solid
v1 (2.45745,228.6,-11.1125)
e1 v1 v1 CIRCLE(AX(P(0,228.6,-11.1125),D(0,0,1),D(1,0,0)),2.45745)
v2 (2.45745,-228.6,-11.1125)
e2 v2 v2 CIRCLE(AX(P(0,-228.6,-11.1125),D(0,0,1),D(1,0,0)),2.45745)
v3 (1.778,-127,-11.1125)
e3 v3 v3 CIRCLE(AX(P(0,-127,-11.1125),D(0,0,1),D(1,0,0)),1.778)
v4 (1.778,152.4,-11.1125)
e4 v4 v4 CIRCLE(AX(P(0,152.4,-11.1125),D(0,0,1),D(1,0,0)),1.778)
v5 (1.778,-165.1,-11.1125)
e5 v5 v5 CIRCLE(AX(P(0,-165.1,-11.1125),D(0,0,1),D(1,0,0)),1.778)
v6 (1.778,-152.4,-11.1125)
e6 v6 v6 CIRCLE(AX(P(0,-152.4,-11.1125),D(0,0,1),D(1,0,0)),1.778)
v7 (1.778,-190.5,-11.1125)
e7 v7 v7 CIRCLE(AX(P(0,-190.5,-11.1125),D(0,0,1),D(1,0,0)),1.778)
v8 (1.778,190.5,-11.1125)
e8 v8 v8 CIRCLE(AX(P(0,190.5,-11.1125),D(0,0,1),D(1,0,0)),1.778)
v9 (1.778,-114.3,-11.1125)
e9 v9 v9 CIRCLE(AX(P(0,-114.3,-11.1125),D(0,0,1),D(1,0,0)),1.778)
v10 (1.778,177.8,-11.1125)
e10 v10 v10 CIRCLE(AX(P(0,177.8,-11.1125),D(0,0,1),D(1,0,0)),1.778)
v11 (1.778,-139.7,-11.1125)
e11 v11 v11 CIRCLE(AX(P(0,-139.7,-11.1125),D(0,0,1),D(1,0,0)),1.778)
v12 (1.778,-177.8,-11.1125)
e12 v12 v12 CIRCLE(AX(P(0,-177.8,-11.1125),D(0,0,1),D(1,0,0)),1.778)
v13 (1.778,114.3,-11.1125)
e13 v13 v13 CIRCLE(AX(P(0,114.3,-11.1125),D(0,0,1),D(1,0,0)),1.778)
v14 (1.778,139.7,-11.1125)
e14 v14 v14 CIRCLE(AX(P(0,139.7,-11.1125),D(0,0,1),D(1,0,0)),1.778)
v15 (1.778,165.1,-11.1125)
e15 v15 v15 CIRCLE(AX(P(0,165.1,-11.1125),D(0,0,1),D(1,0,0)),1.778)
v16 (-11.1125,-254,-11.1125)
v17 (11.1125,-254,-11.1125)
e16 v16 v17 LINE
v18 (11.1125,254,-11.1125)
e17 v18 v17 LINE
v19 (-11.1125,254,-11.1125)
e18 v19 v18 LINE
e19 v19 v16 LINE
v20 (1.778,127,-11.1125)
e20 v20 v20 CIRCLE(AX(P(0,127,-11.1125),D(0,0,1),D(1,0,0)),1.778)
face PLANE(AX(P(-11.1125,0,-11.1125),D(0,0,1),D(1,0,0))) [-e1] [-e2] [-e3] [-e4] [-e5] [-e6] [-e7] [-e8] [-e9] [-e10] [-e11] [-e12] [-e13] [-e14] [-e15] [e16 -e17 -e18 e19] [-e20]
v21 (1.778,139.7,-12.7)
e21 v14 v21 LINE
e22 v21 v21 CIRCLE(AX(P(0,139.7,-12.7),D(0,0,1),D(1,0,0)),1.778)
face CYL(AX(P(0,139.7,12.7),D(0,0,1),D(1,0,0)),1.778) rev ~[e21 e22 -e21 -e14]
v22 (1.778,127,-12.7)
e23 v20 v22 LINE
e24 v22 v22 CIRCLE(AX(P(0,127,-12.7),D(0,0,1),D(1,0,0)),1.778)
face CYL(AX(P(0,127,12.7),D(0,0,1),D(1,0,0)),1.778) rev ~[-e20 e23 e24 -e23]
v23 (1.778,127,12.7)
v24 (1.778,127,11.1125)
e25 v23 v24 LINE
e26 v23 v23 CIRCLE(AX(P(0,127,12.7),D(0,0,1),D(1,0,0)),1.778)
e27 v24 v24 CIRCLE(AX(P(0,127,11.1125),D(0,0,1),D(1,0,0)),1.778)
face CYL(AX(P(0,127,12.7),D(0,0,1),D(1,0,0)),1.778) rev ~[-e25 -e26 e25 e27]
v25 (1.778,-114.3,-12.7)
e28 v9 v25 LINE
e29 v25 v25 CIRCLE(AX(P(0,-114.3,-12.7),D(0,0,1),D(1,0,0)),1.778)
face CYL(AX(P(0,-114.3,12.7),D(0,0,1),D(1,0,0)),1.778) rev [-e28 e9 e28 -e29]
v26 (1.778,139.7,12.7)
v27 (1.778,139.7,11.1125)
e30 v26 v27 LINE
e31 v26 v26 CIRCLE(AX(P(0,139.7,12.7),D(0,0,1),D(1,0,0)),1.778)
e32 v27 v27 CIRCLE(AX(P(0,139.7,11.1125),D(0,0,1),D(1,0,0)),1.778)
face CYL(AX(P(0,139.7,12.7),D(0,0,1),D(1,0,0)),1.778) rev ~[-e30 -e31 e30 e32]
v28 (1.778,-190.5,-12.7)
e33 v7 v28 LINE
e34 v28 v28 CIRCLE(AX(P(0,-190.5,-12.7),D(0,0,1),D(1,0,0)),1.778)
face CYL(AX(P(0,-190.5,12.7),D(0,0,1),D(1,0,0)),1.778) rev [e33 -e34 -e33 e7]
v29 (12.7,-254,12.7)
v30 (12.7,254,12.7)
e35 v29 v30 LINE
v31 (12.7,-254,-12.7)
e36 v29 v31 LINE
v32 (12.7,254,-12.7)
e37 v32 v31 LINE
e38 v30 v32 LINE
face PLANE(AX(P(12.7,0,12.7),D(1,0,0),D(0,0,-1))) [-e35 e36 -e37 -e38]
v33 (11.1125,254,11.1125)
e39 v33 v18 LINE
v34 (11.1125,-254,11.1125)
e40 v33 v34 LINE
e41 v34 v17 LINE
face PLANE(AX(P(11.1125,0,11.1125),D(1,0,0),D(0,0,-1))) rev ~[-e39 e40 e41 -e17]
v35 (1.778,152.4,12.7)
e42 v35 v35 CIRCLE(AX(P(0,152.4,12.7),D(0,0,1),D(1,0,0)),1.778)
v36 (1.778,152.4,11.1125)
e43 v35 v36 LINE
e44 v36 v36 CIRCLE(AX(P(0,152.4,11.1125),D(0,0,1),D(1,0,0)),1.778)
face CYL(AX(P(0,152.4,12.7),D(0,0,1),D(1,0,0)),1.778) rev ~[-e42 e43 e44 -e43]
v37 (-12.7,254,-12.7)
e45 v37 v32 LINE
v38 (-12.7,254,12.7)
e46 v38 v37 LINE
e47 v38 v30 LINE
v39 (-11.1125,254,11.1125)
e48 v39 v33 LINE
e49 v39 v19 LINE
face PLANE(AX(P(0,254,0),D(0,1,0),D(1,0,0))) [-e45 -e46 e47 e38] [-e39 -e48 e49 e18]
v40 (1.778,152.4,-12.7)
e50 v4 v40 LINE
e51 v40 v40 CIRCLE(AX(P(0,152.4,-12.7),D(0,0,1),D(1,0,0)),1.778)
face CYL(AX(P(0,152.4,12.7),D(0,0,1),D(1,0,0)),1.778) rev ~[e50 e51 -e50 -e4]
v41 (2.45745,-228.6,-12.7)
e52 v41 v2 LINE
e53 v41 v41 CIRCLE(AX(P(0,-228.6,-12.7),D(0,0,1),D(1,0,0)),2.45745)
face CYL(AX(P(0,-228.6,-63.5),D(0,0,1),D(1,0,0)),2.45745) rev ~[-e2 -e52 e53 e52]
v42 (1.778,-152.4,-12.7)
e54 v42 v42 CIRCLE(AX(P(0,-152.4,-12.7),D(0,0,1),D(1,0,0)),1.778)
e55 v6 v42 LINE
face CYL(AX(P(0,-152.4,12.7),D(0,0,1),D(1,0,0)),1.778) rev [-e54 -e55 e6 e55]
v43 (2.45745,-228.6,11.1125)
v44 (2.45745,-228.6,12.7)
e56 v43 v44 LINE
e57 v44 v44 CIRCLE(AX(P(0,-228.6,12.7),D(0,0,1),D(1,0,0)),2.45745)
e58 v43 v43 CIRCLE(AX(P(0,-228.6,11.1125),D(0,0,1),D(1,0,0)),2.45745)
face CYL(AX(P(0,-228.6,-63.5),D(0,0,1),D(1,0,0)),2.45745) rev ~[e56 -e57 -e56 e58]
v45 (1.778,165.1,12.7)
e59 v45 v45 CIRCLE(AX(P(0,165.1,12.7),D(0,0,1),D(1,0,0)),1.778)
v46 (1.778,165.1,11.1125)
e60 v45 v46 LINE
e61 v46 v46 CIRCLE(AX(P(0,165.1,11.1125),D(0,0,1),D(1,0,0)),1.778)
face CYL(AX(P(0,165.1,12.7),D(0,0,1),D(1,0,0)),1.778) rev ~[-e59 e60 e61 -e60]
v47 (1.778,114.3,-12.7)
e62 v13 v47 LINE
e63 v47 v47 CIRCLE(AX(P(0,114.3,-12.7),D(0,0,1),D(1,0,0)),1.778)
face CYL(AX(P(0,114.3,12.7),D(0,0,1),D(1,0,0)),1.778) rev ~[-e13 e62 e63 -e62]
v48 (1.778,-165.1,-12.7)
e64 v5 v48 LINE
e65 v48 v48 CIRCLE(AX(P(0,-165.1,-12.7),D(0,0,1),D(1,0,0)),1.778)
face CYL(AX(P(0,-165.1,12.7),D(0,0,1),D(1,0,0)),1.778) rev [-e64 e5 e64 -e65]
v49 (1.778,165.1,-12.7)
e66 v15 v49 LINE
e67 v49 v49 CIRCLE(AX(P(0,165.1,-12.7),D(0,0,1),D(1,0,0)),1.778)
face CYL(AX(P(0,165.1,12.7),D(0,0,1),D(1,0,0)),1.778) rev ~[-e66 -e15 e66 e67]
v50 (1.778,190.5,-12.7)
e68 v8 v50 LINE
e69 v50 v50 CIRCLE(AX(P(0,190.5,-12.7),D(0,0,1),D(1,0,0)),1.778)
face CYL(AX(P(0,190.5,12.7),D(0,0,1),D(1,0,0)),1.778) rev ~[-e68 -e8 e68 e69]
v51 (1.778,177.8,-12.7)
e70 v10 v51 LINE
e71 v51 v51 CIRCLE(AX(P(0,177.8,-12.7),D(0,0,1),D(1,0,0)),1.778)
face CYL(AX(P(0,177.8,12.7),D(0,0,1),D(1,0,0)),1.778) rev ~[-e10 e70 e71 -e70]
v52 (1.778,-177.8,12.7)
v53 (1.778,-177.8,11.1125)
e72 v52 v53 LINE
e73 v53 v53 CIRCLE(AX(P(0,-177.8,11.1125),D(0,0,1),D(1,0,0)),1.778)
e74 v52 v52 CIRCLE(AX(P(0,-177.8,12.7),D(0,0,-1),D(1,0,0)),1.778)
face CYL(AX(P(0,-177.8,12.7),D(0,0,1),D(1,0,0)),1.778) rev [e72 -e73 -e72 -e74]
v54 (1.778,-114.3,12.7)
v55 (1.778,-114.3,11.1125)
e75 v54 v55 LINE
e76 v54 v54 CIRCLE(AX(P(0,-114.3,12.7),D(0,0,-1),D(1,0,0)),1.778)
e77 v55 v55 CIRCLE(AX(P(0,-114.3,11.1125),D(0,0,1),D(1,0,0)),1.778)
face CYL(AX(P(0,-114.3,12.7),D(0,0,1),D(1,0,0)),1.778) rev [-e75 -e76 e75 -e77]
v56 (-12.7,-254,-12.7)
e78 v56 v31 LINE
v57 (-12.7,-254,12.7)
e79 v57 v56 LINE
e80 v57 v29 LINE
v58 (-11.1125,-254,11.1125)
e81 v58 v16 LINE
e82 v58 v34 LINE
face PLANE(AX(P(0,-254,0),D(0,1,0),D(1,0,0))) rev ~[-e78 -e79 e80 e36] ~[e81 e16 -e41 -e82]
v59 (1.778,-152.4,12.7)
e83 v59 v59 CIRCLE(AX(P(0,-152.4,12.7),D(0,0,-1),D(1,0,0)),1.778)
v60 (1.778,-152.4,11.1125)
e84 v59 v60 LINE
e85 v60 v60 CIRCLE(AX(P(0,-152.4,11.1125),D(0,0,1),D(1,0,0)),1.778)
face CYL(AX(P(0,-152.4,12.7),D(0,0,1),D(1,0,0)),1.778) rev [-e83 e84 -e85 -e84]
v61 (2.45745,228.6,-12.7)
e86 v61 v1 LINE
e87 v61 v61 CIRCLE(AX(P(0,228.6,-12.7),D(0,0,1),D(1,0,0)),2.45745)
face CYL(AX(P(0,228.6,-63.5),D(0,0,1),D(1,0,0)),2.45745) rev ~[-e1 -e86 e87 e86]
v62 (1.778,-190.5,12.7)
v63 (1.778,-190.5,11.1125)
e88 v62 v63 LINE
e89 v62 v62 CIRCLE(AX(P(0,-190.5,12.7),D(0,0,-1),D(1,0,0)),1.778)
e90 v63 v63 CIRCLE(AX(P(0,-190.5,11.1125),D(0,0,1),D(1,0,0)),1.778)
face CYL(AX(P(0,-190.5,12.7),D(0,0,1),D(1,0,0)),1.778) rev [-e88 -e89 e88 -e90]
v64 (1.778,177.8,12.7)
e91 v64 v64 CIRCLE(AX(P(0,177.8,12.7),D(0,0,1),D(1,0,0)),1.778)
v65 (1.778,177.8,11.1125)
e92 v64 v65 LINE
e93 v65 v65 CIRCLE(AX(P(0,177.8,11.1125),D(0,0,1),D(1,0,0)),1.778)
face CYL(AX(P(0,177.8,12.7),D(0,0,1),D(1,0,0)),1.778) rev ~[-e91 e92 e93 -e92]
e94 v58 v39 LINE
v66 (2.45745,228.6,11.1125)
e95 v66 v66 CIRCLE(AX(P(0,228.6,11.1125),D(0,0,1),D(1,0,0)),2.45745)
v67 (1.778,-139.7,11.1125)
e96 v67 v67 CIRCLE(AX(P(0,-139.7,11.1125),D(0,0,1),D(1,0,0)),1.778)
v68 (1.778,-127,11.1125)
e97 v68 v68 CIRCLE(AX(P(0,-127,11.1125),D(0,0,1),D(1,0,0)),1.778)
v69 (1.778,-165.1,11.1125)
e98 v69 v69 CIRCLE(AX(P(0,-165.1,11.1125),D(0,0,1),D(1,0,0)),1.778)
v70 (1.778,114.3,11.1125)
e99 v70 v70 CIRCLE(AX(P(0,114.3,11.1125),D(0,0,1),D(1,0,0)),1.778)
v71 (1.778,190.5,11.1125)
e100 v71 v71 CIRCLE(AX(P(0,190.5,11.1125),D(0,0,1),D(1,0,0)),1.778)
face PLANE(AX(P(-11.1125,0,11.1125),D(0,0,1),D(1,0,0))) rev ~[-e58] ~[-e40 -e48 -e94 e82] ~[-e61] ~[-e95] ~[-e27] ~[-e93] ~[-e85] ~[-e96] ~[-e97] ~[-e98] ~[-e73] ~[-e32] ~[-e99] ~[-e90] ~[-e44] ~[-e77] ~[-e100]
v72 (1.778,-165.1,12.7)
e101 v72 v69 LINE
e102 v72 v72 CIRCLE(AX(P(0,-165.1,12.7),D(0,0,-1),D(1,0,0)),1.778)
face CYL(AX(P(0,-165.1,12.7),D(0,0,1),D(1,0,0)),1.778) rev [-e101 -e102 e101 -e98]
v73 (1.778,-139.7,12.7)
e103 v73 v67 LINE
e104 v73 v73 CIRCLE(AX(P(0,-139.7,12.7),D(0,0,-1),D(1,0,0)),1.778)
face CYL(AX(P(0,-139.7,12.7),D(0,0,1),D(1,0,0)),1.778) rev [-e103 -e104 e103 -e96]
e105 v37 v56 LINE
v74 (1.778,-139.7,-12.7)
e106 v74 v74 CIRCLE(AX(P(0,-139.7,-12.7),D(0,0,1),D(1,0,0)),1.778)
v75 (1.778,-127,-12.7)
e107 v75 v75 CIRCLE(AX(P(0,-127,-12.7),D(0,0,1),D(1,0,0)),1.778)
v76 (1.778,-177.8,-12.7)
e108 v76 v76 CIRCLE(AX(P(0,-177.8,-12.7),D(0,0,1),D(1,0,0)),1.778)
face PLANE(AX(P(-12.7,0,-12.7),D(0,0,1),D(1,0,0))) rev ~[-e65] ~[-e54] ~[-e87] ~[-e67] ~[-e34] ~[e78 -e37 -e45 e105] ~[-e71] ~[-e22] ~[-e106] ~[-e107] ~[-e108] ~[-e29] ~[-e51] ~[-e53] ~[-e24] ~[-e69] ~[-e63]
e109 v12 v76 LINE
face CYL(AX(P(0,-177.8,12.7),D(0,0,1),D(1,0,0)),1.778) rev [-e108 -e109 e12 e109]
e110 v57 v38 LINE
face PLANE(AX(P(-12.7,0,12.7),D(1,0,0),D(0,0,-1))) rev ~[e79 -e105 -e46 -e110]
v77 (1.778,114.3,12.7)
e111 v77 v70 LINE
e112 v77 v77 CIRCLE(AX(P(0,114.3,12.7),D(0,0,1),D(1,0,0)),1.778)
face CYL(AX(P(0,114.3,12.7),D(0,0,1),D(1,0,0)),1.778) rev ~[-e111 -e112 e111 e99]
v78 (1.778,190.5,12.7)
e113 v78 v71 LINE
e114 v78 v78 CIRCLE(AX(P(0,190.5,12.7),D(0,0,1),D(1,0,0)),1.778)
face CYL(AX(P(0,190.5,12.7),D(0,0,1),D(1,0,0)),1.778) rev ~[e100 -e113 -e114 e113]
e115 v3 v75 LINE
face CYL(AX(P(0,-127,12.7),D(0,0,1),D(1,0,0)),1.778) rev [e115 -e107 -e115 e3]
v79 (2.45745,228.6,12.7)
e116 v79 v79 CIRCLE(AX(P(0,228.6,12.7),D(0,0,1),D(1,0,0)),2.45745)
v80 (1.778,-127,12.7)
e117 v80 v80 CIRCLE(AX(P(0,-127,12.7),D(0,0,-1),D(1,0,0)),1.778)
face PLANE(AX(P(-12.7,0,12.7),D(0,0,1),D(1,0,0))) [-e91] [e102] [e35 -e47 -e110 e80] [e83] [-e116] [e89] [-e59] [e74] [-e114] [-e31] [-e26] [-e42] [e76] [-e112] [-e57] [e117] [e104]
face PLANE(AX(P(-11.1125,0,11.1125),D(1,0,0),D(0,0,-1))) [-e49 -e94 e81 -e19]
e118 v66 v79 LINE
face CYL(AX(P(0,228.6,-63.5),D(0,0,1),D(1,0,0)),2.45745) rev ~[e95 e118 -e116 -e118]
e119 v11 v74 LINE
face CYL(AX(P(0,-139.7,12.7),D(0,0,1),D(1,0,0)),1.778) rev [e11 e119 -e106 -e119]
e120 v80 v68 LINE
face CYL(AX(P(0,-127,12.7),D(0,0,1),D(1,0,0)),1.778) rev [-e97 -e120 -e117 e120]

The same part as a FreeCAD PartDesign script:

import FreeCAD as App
import Part
import Sketcher
Q = App.Units.Quantity

doc = App.newDocument("Part")
params = doc.addObject("Spreadsheet::Sheet", "Params")
for row, (alias, value) in enumerate([
    ("sketch1_width", "1 in"),
    ("sketch1_width2", "0.875 in"),
    ("pad1_length", "20 in"),
    ("hole_diameter", "0.1935 in"),
    ("hole_depth", "2 in"),
    ("sketch3_diameter", "0.14 in"),
], start=1):
    params.set(f"A{row}", alias)
    params.set(f"B{row}", "=" + value)
    params.setAlias(f"B{row}", alias)

body = doc.addObject("PartDesign::Body", "Body")

# Sketch on XZ plane
sketch1 = body.newObject("Sketcher::SketchObject", "Sketch")
sketch1.AttachmentSupport = (doc.getObject("XZ_Plane"), [""])
sketch1.MapMode = "FlatFace"
sketch1.addGeometry([
    Part.LineSegment(App.Vector(-13, -13, 0), App.Vector(-13, 13, 0)),  # 0
    Part.LineSegment(App.Vector(-13, 13, 0), App.Vector(13, 13, 0)),  # 1
    Part.LineSegment(App.Vector(13, 13, 0), App.Vector(13, -13, 0)),  # 2
    Part.LineSegment(App.Vector(13, -13, 0), App.Vector(-13, -13, 0)),  # 3
    Part.LineSegment(App.Vector(11, 11, 0), App.Vector(-11, 11, 0)),  # 4
    Part.LineSegment(App.Vector(-11, 11, 0), App.Vector(-11, -11, 0)),  # 5
    Part.LineSegment(App.Vector(-11, -11, 0), App.Vector(11, -11, 0)),  # 6
    Part.LineSegment(App.Vector(11, -11, 0), App.Vector(11, 11, 0)),  # 7
], False)
sketch1.addConstraint([
    Sketcher.Constraint("Coincident", 0, 2, 1, 1),
    Sketcher.Constraint("Coincident", 1, 2, 2, 1),
    Sketcher.Constraint("Coincident", 2, 2, 3, 1),
    Sketcher.Constraint("Coincident", 3, 2, 0, 1),
    Sketcher.Constraint("Coincident", 4, 2, 5, 1),
    Sketcher.Constraint("Coincident", 5, 2, 6, 1),
    Sketcher.Constraint("Coincident", 6, 2, 7, 1),
    Sketcher.Constraint("Coincident", 7, 2, 4, 1),
    Sketcher.Constraint("Vertical", 0),
    Sketcher.Constraint("Horizontal", 1),
    Sketcher.Constraint("Vertical", 2),
    Sketcher.Constraint("Horizontal", 3),
    Sketcher.Constraint("Horizontal", 4),
    Sketcher.Constraint("Vertical", 5),
    Sketcher.Constraint("Horizontal", 6),
    Sketcher.Constraint("Vertical", 7),
    Sketcher.Constraint("Symmetric", 0, 2, 2, 2, -1, 1),
    Sketcher.Constraint("Symmetric", 4, 2, 6, 2, -1, 1),
    Sketcher.Constraint("Equal", 3, 0),
    Sketcher.Constraint("Equal", 6, 5),
    Sketcher.Constraint("DistanceX", 1, 1, 1, 2, Q("1 in")),
    Sketcher.Constraint("DistanceX", 4, 2, 4, 1, Q("0.875 in")),
])
sketch1.setExpression("Constraints[20]", "Params.sketch1_width")
sketch1.setExpression("Constraints[21]", "Params.sketch1_width2")
pad1 = body.newObject("PartDesign::Pad", "Pad")
pad1.Profile = sketch1
pad1.setExpression("Length", "Params.pad1_length")
pad1.Midplane = True

# Sketch on XY plane
sketch2 = body.newObject("Sketcher::SketchObject", "Sketch001")
sketch2.AttachmentSupport = (doc.getObject("XY_Plane"), [""])
sketch2.MapMode = "FlatFace"
sketch2.AttachmentOffset = App.Placement(App.Vector(0, 0, -0.5 * 25.4), App.Rotation())
sketch2.addGeometry([
    Part.Circle(App.Vector(0, 228.6, 0), App.Vector(0, 0, 1), 2.5),
    Part.Circle(App.Vector(0, -228.6, 0), App.Vector(0, 0, 1), 2.5),
], False)
sketch2.addConstraint([
    Sketcher.Constraint("Equal", 0, 1),
    Sketcher.Constraint("Symmetric", 0, 3, 1, 3, -1, 1),
    Sketcher.Constraint("PointOnObject", 0, 3, -2),
    Sketcher.Constraint("DistanceY", -1, 1, 0, 3, Q("9 in")),
    Sketcher.Constraint("Diameter", 0, Q("0.1935 in")),
])
doc.recompute()
hole = body.newObject("PartDesign::Hole", "Hole")
hole.Profile = sketch2
hole.ThreadType = "None"
hole.setExpression("Diameter", "Params.hole_diameter")
hole.DepthType = "Dimension"
hole.setExpression("Depth", "Params.hole_depth")
hole.DrillPoint = "Angled"
hole.DrillPointAngle = 118
hole.Reversed = True

# Sketch on XY plane
sketch3 = body.newObject("Sketcher::SketchObject", "Sketch002")
sketch3.AttachmentSupport = (doc.getObject("XY_Plane"), [""])
sketch3.MapMode = "FlatFace"
sketch3.AttachmentOffset = App.Placement(App.Vector(0, 0, 0.5 * 25.4), App.Rotation())
sketch3.addGeometry([
    Part.Circle(App.Vector(0, 190.5, 0), App.Vector(0, 0, 1), 1.8),  # 0
    Part.Circle(App.Vector(0, 139.7, 0), App.Vector(0, 0, 1), 1.8),  # 1
    Part.Circle(App.Vector(0, 177.8, 0), App.Vector(0, 0, 1), 1.8),  # 2
    Part.Circle(App.Vector(0, 165.1, 0), App.Vector(0, 0, 1), 1.8),  # 3
    Part.Circle(App.Vector(0, 152.4, 0), App.Vector(0, 0, 1), 1.8),  # 4
    Part.Circle(App.Vector(0, 127, 0), App.Vector(0, 0, 1), 1.8),  # 5
    Part.Circle(App.Vector(0, 114.3, 0), App.Vector(0, 0, 1), 1.8),  # 6
], False)
sketch3.addConstraint([
    Sketcher.Constraint("Equal", 0, 1),
    Sketcher.Constraint("Equal", 1, 2),
    Sketcher.Constraint("Equal", 2, 3),
    Sketcher.Constraint("Equal", 3, 4),
    Sketcher.Constraint("Equal", 4, 5),
    Sketcher.Constraint("Equal", 5, 6),
    Sketcher.Constraint("PointOnObject", 0, 3, -2),
    Sketcher.Constraint("PointOnObject", 1, 3, -2),
    Sketcher.Constraint("PointOnObject", 2, 3, -2),
    Sketcher.Constraint("PointOnObject", 3, 3, -2),
    Sketcher.Constraint("PointOnObject", 4, 3, -2),
    Sketcher.Constraint("PointOnObject", 5, 3, -2),
    Sketcher.Constraint("PointOnObject", 6, 3, -2),
    Sketcher.Constraint("Diameter", 0, Q("0.14 in")),
    Sketcher.Constraint("DistanceY", -1, 1, 2, 3, Q("7 in")),
    Sketcher.Constraint("DistanceY", -1, 1, 4, 3, Q("6 in")),
    Sketcher.Constraint("DistanceY", -1, 1, 5, 3, Q("5 in")),
    Sketcher.Constraint("DistanceY", 1, 3, 0, 3, Q("2 in")),
    Sketcher.Constraint("DistanceY", 3, 3, 0, 3, Q("1 in")),
    Sketcher.Constraint("DistanceY", 6, 3, 1, 3, Q("1 in")),
    Sketcher.Constraint("DistanceY", -1, 1, 0, 3, Q("7.5 in")),
])
sketch3.setExpression("Constraints[13]", "Params.sketch3_diameter")
pocket1 = body.newObject("PartDesign::Pocket", "Pocket")
pocket1.Profile = sketch3
pocket1.Type = "ThroughAll"
doc.recompute()

mirrored = body.newObject("PartDesign::Mirrored", "Mirrored")
mirrored.Originals = [pocket1]
mirrored.MirrorPlane = (doc.getObject("XZ_Plane"), [""])
body.Tip = mirrored

doc.recompute()
